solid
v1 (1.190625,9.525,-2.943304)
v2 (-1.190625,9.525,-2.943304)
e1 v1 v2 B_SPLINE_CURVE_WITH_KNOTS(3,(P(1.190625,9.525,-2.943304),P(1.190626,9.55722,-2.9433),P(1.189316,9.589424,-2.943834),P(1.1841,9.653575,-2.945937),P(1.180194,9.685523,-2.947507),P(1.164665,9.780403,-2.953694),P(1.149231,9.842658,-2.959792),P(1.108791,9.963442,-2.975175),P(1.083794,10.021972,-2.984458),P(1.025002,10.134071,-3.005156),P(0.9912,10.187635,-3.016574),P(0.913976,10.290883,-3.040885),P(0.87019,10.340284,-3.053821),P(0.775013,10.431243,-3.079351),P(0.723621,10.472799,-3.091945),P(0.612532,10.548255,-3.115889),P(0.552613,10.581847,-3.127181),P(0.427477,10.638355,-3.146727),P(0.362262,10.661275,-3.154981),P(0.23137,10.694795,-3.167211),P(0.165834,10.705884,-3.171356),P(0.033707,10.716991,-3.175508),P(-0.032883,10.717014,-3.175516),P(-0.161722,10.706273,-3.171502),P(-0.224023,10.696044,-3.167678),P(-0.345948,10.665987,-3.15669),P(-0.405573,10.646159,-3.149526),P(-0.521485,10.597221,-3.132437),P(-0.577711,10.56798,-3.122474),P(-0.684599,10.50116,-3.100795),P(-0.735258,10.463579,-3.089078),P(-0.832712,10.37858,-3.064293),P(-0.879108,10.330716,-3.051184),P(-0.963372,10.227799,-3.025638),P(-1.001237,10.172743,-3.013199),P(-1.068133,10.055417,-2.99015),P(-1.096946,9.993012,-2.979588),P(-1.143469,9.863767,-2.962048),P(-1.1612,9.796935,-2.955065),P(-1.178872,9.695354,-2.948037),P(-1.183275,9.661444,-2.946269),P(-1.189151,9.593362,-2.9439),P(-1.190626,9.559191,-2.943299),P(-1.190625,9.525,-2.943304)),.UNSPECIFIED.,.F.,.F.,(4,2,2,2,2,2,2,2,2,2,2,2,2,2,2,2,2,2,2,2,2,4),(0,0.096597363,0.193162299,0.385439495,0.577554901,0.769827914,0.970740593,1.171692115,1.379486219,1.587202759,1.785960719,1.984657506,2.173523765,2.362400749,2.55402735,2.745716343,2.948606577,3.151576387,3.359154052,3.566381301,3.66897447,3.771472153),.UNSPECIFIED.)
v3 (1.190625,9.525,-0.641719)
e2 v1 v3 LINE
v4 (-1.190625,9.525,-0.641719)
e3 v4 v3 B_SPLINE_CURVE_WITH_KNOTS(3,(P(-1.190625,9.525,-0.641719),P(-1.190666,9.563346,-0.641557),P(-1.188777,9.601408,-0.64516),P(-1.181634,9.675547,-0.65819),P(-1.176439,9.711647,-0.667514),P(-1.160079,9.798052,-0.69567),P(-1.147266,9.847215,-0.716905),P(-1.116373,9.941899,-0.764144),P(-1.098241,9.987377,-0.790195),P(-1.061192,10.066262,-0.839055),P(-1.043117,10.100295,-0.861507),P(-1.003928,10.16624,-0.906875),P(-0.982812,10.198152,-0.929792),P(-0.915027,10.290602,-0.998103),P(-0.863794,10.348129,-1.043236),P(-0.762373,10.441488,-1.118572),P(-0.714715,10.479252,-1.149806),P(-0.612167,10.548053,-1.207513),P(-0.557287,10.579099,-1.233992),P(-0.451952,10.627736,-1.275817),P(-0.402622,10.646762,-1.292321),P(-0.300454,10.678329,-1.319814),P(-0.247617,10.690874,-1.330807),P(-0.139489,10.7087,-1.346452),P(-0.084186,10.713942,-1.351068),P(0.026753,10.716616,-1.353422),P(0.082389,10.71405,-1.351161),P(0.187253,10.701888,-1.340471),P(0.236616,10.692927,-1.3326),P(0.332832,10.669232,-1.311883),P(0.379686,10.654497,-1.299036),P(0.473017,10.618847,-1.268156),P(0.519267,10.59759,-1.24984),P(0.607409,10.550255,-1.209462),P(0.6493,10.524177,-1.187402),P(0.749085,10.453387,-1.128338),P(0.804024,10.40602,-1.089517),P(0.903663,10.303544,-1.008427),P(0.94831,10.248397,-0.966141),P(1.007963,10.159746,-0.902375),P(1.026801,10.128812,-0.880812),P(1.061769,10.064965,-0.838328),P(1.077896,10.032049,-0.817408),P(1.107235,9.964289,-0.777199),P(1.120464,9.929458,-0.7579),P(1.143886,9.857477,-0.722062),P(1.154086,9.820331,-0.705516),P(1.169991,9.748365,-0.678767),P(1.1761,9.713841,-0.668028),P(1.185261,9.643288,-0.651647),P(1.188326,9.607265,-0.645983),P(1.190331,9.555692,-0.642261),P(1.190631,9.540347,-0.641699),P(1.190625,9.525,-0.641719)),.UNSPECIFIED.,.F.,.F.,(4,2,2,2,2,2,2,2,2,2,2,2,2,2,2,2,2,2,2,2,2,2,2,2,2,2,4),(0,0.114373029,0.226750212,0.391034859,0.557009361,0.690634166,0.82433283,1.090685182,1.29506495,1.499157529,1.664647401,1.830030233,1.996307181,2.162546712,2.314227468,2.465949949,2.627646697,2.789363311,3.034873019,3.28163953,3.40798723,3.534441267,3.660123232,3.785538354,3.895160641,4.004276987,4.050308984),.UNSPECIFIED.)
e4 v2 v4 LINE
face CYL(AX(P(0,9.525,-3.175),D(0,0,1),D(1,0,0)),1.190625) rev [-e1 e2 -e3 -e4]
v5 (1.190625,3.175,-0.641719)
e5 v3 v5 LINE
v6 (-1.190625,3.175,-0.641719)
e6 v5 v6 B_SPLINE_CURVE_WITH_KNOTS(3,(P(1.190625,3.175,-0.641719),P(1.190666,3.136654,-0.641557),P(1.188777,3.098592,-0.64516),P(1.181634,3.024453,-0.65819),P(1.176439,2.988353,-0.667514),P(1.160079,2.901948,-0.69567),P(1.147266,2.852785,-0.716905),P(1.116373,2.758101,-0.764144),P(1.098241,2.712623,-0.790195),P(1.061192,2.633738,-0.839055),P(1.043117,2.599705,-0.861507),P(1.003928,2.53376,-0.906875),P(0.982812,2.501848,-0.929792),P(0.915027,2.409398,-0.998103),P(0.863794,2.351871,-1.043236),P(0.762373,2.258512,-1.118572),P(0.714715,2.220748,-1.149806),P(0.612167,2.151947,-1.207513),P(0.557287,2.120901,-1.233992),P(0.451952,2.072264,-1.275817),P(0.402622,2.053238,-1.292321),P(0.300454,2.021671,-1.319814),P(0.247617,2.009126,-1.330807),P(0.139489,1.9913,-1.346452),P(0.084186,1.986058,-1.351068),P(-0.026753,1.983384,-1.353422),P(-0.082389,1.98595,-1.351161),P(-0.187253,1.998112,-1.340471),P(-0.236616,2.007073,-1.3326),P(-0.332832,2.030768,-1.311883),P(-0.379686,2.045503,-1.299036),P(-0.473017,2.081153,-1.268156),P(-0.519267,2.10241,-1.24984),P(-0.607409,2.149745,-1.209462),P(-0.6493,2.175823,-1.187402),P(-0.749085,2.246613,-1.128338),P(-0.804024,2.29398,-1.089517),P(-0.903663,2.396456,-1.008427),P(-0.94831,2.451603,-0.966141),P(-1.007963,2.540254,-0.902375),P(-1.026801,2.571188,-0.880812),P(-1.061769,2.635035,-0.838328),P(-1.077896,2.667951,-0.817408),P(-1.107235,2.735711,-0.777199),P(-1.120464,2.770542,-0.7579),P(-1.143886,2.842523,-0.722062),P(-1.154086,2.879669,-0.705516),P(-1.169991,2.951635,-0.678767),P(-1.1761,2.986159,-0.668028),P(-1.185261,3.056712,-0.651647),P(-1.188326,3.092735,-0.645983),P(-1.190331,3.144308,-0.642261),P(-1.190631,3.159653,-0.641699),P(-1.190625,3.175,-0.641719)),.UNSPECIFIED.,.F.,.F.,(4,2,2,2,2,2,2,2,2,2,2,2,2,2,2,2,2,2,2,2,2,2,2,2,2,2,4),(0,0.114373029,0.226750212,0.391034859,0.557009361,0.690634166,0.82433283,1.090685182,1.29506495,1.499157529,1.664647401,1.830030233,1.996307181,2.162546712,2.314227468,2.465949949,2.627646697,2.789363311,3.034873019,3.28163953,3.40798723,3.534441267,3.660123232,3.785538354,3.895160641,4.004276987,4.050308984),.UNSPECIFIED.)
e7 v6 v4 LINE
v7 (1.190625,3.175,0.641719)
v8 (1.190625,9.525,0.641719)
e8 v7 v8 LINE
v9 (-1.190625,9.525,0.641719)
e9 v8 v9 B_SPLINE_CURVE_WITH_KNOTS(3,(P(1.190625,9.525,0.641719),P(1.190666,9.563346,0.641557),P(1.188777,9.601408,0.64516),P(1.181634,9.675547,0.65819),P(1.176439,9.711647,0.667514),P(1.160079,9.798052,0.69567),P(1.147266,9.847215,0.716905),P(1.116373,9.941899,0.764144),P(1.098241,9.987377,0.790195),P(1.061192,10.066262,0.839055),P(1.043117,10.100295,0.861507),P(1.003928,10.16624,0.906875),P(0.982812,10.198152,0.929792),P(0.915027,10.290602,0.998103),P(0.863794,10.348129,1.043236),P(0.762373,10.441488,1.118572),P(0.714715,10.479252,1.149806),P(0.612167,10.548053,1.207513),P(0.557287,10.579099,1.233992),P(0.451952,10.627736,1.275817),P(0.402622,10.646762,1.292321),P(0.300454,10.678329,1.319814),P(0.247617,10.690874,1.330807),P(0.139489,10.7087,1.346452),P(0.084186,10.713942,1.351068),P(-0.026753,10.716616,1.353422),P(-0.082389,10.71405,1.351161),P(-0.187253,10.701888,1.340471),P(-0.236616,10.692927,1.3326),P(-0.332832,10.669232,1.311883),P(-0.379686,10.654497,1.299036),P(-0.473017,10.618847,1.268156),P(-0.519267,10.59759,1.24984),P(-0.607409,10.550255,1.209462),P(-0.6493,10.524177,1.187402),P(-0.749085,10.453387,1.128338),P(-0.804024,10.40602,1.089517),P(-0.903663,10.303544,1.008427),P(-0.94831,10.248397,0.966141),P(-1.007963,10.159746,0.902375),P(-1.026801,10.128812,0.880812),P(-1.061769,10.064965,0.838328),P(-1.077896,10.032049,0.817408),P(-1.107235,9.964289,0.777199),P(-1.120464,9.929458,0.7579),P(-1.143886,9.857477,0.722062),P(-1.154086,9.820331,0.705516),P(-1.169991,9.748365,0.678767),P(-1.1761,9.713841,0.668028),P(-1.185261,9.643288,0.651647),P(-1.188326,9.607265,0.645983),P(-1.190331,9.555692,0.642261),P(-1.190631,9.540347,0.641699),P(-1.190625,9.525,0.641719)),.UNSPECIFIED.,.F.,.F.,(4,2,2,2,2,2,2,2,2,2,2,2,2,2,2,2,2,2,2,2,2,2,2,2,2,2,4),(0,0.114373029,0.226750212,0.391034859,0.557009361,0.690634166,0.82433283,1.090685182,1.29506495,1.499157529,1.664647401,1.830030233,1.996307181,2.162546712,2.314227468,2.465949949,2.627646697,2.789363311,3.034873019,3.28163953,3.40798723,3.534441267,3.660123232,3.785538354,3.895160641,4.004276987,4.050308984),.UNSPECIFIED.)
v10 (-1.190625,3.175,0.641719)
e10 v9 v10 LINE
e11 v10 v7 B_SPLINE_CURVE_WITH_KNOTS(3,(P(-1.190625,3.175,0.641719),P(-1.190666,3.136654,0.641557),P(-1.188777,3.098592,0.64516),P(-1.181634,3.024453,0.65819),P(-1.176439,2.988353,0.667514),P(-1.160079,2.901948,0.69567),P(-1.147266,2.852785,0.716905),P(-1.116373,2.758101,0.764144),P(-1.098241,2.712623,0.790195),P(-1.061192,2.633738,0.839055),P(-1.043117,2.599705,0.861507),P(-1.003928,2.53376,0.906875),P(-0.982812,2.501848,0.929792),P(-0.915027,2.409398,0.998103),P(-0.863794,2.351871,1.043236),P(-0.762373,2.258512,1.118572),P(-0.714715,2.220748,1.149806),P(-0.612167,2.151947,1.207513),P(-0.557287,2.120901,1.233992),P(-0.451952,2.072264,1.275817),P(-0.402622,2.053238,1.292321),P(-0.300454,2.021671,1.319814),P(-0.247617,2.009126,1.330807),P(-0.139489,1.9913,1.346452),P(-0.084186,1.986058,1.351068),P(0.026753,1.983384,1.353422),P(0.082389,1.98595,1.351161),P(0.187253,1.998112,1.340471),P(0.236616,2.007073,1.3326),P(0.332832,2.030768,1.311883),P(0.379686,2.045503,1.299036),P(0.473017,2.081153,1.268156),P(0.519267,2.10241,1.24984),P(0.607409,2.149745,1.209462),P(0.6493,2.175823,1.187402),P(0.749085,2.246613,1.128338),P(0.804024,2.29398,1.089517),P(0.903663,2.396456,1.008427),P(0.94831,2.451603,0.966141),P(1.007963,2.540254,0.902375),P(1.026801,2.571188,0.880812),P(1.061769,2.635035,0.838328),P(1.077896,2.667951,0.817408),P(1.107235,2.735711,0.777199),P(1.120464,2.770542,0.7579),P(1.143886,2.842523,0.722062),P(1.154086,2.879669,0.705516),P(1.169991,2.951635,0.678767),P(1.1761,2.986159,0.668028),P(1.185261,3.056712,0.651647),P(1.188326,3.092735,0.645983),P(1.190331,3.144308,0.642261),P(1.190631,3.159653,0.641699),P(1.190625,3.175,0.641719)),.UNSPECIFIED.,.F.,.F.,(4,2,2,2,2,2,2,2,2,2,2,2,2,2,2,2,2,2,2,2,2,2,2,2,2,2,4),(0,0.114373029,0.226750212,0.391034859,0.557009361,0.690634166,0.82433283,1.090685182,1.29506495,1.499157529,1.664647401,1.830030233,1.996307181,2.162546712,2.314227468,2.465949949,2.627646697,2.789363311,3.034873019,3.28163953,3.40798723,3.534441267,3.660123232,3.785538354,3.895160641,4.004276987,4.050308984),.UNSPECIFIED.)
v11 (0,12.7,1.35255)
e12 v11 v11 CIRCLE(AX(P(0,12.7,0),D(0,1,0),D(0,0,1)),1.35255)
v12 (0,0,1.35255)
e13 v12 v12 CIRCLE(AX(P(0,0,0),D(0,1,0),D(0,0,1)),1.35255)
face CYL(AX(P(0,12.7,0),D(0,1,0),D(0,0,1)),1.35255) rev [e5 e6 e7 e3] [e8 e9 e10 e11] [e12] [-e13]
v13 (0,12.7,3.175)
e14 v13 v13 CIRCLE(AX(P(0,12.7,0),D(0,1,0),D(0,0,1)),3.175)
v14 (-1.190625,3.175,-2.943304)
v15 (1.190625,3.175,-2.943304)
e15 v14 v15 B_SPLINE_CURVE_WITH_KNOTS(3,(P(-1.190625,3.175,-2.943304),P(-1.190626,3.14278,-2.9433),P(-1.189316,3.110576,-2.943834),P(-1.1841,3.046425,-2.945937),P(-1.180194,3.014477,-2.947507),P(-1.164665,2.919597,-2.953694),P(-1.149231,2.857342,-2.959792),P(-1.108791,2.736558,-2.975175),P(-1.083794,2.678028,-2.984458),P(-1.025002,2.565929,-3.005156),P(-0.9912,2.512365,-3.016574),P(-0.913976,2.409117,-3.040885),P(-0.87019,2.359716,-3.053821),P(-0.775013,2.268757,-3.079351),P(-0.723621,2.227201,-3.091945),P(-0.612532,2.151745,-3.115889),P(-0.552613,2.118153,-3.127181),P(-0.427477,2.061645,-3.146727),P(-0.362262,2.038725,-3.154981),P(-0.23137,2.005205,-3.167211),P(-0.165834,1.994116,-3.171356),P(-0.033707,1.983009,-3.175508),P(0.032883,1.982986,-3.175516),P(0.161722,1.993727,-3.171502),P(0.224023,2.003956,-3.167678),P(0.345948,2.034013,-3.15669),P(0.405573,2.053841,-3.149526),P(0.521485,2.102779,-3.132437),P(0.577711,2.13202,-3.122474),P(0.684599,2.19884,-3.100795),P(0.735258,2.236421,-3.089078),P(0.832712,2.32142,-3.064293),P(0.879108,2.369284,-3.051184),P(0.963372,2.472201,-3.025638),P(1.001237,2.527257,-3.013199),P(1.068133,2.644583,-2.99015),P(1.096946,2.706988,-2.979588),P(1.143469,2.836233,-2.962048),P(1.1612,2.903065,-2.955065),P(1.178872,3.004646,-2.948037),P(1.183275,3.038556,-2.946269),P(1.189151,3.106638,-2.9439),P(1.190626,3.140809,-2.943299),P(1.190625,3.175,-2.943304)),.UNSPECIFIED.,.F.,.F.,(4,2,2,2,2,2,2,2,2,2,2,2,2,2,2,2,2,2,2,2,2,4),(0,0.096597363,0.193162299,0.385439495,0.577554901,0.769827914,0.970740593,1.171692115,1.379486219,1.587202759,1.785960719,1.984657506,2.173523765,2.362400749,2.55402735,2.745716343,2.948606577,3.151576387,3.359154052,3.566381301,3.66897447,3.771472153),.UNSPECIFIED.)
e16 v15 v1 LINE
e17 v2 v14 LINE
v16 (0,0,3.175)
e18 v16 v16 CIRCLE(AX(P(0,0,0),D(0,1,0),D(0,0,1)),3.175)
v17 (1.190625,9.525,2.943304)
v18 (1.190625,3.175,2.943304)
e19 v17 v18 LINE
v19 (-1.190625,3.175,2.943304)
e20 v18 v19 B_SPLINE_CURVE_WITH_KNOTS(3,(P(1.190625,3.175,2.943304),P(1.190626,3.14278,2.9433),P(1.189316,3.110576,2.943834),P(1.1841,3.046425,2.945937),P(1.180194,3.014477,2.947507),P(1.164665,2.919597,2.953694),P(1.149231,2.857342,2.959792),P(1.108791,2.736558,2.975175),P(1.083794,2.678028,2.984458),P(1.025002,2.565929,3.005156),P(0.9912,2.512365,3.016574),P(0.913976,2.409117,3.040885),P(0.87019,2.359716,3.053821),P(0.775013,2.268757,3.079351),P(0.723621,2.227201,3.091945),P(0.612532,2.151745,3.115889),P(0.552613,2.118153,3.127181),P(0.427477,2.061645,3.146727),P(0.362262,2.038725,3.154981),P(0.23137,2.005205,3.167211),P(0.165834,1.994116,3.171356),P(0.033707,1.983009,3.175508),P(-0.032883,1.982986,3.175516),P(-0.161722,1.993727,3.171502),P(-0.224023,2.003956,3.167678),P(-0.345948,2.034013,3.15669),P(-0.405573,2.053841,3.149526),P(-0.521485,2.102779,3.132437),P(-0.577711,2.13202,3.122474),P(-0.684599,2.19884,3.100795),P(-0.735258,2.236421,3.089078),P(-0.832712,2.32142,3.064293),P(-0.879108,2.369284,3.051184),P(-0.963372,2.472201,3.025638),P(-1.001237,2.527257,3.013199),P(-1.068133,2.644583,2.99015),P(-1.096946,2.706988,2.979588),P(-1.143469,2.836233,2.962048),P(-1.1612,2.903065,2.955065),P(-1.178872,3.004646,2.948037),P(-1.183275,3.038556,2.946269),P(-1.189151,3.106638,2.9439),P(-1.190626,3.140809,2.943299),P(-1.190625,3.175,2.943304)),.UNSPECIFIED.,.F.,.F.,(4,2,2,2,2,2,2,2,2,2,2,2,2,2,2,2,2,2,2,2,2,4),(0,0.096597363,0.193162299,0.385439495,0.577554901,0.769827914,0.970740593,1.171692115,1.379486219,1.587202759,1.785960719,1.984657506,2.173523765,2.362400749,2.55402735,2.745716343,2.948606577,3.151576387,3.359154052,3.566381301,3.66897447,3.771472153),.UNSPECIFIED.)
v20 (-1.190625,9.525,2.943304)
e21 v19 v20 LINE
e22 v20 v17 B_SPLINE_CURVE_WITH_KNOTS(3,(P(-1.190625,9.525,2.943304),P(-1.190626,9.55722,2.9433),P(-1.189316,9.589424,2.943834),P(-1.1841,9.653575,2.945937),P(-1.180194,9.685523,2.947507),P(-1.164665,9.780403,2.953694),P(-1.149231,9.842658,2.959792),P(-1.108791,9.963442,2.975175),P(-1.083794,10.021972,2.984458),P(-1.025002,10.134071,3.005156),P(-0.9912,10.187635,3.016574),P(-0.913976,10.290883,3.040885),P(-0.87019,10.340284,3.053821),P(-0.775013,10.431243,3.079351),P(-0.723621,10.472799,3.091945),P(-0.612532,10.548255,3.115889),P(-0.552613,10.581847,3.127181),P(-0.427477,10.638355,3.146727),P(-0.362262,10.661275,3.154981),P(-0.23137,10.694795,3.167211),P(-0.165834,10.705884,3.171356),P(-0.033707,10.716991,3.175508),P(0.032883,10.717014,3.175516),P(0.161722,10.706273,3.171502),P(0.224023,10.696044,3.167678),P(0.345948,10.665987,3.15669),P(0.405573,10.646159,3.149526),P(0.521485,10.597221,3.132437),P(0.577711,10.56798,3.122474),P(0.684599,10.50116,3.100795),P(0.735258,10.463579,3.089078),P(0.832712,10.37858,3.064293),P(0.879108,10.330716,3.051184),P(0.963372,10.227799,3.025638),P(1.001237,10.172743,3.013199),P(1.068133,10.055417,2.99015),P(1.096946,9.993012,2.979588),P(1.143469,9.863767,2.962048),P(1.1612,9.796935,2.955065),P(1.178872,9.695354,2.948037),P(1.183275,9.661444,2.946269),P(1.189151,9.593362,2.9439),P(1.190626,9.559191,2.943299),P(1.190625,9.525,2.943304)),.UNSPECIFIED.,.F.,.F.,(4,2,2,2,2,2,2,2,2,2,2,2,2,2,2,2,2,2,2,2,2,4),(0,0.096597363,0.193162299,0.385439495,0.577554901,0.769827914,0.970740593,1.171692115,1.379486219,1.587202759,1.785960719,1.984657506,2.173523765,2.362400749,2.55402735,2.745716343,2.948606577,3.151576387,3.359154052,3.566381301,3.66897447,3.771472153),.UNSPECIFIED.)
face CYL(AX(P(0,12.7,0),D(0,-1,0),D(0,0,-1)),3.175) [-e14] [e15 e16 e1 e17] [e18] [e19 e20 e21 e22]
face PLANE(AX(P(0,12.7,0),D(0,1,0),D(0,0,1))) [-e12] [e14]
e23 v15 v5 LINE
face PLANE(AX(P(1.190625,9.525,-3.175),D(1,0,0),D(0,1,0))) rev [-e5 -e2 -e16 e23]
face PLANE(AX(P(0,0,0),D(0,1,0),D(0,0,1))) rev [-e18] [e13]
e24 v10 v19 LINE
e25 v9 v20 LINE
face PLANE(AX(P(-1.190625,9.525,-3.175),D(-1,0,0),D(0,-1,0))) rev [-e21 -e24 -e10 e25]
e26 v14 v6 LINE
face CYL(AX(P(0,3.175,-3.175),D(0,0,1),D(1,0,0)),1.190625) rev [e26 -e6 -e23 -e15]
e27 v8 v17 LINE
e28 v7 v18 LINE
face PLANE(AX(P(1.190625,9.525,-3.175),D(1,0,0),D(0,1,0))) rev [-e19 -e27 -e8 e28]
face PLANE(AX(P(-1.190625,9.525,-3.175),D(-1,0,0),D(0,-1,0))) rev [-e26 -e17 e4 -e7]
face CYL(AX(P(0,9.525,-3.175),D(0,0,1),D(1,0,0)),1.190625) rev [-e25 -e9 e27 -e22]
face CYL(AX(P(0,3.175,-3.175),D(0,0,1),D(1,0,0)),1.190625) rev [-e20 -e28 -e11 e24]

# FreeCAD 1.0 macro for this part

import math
import FreeCAD as App
import Part
import Sketcher
from FreeCAD import Vector
Q = App.Units.Quantity

doc = App.newDocument("Part")
body = doc.addObject("PartDesign::Body", "Body")

sketch1 = body.newObject("Sketcher::SketchObject", "Sketch")
sketch1.AttachmentSupport = (doc.getObject("XZ_Plane"), [""])
sketch1.MapMode = "FlatFace"
sketch1.addGeometry(Part.Circle(Vector(0, 0, 0), Vector(0, 0, 1), 3.2), False)
sketch1.addConstraint([
    Sketcher.Constraint("Coincident", 0, 3, -1, 1),
    Sketcher.Constraint("Diameter", 0, Q("0.25 in")),
])
pad1 = body.newObject("PartDesign::Pad", "Pad")
pad1.Profile = sketch1
pad1.Length = Q("0.5 in")
pad1.Reversed = True

sketch2 = body.newObject("Sketcher::SketchObject", "Sketch001")
sketch2.AttachmentSupport = (doc.getObject("XZ_Plane"), [""])
sketch2.MapMode = "FlatFace"
sketch2.AttachmentOffset = App.Placement(Vector(0, 0, -0.5 * 25.4), App.Rotation())
sketch2.addGeometry(Part.Circle(Vector(0, 0, 0), Vector(0, 0, 1), 1.4), False)
sketch2.addConstraint([
    Sketcher.Constraint("Coincident", 0, 3, -1, 1),
    Sketcher.Constraint("Diameter", 0, Q("0.1065 in")),
])
doc.recompute()
hole = body.newObject("PartDesign::Hole", "Hole")
hole.Profile = sketch2
hole.ThreadType = "None"
hole.Diameter = Q("0.1065 in")
hole.DepthType = "ThroughAll"
hole.Reversed = True

sketch3 = body.newObject("Sketcher::SketchObject", "Sketch002")
sketch3.AttachmentSupport = (doc.getObject("XY_Plane"), [""])
sketch3.MapMode = "FlatFace"
sketch3.addGeometry([
    Part.LineSegment(Vector(1.2, 3.2, 0), Vector(1.2, 9.5, 0)),
    Part.ArcOfCircle(Part.Circle(Vector(0, 9.5, 0), Vector(0, 0, 1), 1.2), math.radians(0), math.radians(180)),
    Part.LineSegment(Vector(-1.2, 9.5, 0), Vector(-1.2, 3.2, 0)),
    Part.ArcOfCircle(Part.Circle(Vector(0, 3.2, 0), Vector(0, 0, 1), 1.2), math.radians(180), math.radians(360)),
], False)
sketch3.addConstraint([
    Sketcher.Constraint("Tangent", 0, 2, 1, 1),
    Sketcher.Constraint("Tangent", 1, 2, 2, 1),
    Sketcher.Constraint("Tangent", 2, 2, 3, 1),
    Sketcher.Constraint("Tangent", 3, 2, 0, 1),
    Sketcher.Constraint("Vertical", 0),
    Sketcher.Constraint("Vertical", 2),
    Sketcher.Constraint("PointOnObject", 1, 3, -2),
    Sketcher.Constraint("Radius", 1, Q("0.046875 in")),
    Sketcher.Constraint("DistanceY", 0, 1, 0, 2, Q("0.25 in")),
    Sketcher.Constraint("DistanceY", -1, 1, 1, 3, Q("0.375 in")),
])
pocket1 = body.newObject("PartDesign::Pocket", "Pocket")
pocket1.Profile = sketch3
pocket1.Type = "ThroughAll"
pocket1.Midplane = True

doc.recompute()
